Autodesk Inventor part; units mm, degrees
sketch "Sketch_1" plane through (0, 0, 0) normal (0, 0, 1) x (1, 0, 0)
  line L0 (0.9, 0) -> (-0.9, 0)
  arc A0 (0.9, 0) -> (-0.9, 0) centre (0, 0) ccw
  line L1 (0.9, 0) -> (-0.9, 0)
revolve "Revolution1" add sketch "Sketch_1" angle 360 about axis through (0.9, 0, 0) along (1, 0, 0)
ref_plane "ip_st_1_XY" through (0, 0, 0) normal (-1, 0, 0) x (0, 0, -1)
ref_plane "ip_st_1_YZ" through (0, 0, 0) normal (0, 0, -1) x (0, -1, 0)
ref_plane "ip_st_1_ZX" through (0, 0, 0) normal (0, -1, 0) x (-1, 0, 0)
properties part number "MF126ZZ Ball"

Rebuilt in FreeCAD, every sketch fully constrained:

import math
import FreeCAD as App
import Part
import Sketcher
from FreeCAD import Vector

doc = App.newDocument("Part")
body = doc.addObject("PartDesign::Body", "Body")

sketch1 = body.newObject("Sketcher::SketchObject", "Sketch")
sketch1.AttachmentSupport = (doc.getObject("XY_Plane"), [""])
sketch1.MapMode = "FlatFace"
sketch1.addGeometry([
    Part.LineSegment(Vector(-0.9, 0, 0), Vector(0.9, 0, 0)),
    Part.ArcOfCircle(Part.Circle(Vector(0, 0, 0), Vector(0, 0, 1), 0.9), math.radians(0), math.radians(180)),
], False)
sketch1.addConstraint([
    Sketcher.Constraint("Coincident", 0, 1, 1, 2),
    Sketcher.Constraint("Coincident", 1, 1, 0, 2),
    Sketcher.Constraint("Horizontal", 0),
    Sketcher.Constraint("Coincident", 1, 3, -1, 1),
    Sketcher.Constraint("PointOnObject", 0, 1, -1),
    Sketcher.Constraint("Radius", 1, 0.9),
])
revolution = body.newObject("PartDesign::Revolution", "Revolution")
revolution.Profile = sketch1
revolution.ReferenceAxis = (sketch1, ["H_Axis"])
revolution.Angle = 360

doc.recompute()
